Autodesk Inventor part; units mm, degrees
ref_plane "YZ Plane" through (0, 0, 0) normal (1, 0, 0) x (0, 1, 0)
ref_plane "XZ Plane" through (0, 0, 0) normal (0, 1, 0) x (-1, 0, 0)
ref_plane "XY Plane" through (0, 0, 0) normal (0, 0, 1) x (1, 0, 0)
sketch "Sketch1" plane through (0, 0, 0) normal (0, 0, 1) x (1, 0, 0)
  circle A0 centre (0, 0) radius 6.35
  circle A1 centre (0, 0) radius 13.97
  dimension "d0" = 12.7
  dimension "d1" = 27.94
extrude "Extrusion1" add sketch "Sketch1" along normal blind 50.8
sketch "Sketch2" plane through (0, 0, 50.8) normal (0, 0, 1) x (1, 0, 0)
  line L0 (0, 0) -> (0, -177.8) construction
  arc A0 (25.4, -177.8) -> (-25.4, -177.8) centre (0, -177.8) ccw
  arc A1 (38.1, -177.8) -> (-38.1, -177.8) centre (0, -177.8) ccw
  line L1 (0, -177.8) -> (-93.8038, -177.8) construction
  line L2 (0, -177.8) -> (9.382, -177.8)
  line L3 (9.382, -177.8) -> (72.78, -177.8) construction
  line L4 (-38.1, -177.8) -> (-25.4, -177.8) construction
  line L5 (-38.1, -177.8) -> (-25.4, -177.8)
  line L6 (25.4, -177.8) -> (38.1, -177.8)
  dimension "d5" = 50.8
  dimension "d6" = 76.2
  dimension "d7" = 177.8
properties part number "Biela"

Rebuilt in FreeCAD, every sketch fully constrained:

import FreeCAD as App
import Part
import Sketcher
from FreeCAD import Vector
Q = App.Units.Quantity

doc = App.newDocument("Part")
body = doc.addObject("PartDesign::Body", "Body")

sketch1 = body.newObject("Sketcher::SketchObject", "Sketch")
sketch1.AttachmentSupport = (doc.getObject("XY_Plane"), [""])
sketch1.MapMode = "FlatFace"
sketch1.addGeometry(Part.Circle(Vector(0, 0, 0), Vector(0, 0, 1), 13.97), False)
sketch1.addGeometry(Part.Circle(Vector(0, 0, 0), Vector(0, 0, 1), 6.35), False)
sketch1.addConstraint(Sketcher.Constraint("Coincident", 0, 3, -1, 1))
sketch1.addConstraint(Sketcher.Constraint("Coincident", 1, 3, -1, 1))
sketch1.addConstraint(Sketcher.Constraint("Diameter", 0, Q("1.1 in")))
sketch1.addConstraint(Sketcher.Constraint("Diameter", 1, Q("0.5 in")))
pad1 = body.newObject("PartDesign::Pad", "Pad")
pad1.Profile = sketch1
pad1.Length = Q("2 in")

doc.recompute()
